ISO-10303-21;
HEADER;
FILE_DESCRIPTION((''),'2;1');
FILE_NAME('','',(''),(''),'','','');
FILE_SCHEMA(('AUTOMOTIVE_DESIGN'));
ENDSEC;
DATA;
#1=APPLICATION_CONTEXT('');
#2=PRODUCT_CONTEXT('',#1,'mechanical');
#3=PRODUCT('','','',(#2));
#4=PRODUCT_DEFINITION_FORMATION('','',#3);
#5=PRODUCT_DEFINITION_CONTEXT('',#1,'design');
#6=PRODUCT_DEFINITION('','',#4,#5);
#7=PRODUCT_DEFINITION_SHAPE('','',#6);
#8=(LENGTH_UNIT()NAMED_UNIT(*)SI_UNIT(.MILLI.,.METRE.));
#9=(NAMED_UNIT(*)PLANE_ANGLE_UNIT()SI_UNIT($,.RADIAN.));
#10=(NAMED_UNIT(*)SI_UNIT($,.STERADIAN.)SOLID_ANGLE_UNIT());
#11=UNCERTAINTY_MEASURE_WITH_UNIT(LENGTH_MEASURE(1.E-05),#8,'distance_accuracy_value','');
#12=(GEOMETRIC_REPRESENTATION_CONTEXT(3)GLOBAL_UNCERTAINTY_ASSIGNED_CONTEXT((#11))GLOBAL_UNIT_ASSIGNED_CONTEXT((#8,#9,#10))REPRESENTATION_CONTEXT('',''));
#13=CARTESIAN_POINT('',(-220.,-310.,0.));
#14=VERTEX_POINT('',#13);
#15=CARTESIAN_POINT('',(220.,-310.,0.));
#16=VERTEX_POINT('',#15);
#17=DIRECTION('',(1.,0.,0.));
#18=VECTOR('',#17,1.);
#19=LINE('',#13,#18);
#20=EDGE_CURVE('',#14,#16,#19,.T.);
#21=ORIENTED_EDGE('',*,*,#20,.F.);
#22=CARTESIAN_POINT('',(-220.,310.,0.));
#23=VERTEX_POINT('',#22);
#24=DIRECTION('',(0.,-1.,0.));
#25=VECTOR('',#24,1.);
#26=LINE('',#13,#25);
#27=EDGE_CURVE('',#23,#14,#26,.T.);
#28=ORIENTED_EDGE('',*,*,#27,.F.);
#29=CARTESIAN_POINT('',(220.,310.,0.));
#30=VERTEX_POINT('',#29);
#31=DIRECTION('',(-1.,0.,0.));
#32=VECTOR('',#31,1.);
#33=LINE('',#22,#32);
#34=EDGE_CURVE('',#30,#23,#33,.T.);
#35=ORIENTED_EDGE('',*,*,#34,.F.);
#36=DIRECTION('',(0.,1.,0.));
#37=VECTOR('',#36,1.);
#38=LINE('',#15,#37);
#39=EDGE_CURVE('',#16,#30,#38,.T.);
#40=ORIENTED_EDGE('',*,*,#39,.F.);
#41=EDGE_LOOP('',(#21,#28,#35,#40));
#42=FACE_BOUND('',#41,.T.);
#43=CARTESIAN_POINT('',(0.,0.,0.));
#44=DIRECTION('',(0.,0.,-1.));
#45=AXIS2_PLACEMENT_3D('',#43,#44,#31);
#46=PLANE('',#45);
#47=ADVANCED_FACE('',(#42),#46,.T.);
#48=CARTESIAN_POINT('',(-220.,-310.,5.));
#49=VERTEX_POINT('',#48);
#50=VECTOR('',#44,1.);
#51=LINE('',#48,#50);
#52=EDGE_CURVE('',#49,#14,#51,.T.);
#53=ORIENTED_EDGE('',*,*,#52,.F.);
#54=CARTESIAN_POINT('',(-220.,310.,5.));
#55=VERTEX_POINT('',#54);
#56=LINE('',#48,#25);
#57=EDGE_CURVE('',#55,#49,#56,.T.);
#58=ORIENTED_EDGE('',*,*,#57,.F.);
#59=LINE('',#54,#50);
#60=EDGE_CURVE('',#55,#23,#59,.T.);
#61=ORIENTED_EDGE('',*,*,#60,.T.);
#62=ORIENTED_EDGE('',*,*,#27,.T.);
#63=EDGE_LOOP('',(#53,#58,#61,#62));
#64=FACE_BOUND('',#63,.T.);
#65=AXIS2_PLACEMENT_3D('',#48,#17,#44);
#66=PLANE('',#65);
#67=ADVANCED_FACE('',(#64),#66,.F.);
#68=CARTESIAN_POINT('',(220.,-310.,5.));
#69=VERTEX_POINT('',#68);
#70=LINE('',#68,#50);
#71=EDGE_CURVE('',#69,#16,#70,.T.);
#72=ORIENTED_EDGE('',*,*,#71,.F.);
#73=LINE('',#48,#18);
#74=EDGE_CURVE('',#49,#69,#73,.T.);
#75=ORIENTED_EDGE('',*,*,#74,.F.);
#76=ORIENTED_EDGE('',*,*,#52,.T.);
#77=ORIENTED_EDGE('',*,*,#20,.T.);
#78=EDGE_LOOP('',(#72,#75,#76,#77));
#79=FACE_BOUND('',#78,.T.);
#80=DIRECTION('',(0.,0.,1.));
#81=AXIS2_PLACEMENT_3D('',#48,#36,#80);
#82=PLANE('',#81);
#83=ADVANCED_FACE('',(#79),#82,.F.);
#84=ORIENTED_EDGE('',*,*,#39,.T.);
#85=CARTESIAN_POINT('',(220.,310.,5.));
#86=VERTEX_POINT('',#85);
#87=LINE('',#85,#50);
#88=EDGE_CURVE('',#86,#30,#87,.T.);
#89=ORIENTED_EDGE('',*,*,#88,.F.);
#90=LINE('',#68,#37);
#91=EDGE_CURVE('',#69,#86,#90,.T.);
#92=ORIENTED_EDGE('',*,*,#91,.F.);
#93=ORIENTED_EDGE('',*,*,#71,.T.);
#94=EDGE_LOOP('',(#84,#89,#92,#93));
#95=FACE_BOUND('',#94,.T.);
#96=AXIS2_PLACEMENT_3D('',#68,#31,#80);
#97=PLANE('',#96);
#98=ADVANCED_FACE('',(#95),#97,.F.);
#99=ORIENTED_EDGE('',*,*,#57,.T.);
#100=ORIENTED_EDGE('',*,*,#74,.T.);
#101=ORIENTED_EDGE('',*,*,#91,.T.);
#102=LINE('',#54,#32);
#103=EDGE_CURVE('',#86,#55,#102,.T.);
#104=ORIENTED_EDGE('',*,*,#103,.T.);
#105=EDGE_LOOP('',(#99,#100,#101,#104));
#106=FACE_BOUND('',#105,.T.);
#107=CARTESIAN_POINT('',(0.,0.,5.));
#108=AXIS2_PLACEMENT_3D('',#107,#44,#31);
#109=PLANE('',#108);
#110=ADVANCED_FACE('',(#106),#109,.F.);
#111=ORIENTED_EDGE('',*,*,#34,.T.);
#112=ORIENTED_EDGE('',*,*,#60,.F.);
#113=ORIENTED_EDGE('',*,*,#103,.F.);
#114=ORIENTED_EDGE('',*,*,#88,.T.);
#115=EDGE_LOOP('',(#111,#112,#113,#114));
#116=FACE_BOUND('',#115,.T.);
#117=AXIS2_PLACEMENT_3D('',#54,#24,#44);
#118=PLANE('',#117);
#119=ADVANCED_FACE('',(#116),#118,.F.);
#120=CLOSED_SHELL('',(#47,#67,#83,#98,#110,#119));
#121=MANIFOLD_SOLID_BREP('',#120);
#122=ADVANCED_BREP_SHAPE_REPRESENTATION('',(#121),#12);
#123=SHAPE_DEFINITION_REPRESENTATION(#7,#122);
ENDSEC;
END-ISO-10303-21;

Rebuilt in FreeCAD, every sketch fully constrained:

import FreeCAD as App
import Part
import Sketcher

V = App.Vector
Q = App.Units.Quantity

doc = App.newDocument("Part")
body = doc.addObject("PartDesign::Body", "Body")

# Sketch on XY plane
sketch1 = doc.addObject("Sketcher::SketchObject", "Sketch")
body.addObject(sketch1)
sketch1.AttachmentSupport = (doc.XY_Plane, [""])
sketch1.MapMode = "FlatFace"
sketch1.addGeometry([
    Part.LineSegment(V(-220, 310, 0), V(-220, -310, 0)),
    Part.LineSegment(V(-220, -310, 0), V(220, -310, 0)),
    Part.LineSegment(V(220, -310, 0), V(220, 310, 0)),
    Part.LineSegment(V(220, 310, 0), V(-220, 310, 0)),
], False)
sketch1.addConstraint([
    Sketcher.Constraint("Coincident", 0, 2, 1, 1),
    Sketcher.Constraint("Coincident", 1, 2, 2, 1),
    Sketcher.Constraint("Coincident", 2, 2, 3, 1),
    Sketcher.Constraint("Coincident", 3, 2, 0, 1),
    Sketcher.Constraint("Vertical", 0),
    Sketcher.Constraint("Horizontal", 1),
    Sketcher.Constraint("Vertical", 2),
    Sketcher.Constraint("Horizontal", 3),
    Sketcher.Constraint("Symmetric", 0, 2, 2, 2, -1, 1),
    Sketcher.Constraint("DistanceX", 1, 1, 1, 2, Q("440 mm")),
    Sketcher.Constraint("DistanceY", 0, 2, 0, 1, Q("620 mm")),
])
pad1 = doc.addObject("PartDesign::Pad", "Pad")
body.addObject(pad1)
pad1.Profile = sketch1
pad1.Length = 5

doc.recompute()
